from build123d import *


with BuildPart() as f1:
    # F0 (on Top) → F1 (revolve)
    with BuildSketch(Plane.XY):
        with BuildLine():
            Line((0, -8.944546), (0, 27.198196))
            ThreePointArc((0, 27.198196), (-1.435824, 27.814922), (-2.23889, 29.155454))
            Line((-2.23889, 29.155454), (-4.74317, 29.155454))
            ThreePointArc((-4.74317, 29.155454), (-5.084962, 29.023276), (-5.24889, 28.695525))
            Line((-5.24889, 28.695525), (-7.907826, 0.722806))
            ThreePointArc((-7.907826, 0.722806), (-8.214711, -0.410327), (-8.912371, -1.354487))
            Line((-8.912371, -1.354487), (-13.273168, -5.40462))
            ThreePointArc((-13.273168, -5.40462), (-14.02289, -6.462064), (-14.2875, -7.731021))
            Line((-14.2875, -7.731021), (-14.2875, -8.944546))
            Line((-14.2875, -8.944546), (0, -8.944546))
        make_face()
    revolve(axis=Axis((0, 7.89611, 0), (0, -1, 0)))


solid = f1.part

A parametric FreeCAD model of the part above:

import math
import FreeCAD as App
import Part
import Sketcher
from FreeCAD import Vector
Q = App.Units.Quantity

doc = App.newDocument("Part")
body = doc.addObject("PartDesign::Body", "Body")

sketch1 = body.newObject("Sketcher::SketchObject", "Sketch")
sketch1.AttachmentSupport = (doc.getObject("XY_Plane"), [""])
sketch1.MapMode = "FlatFace"
sketch1.addGeometry([
    Part.LineSegment(Vector(0, -8.9, 0), Vector(0, 27.2, 0)),
    Part.ArcOfCircle(Part.Circle(Vector(0.2, 29.7, 0), Vector(0, 0, 1), 2.5), math.radians(-167), math.radians(-95)),
    Part.LineSegment(Vector(-2.2, 29.2, 0), Vector(-4.7, 29.2, 0)),
    Part.ArcOfCircle(Part.Circle(Vector(-4.7, 28.6, 0), Vector(0, 0, 1), 0.5), math.radians(90), math.radians(175)),
    Part.LineSegment(Vector(-5.2, 28.7, 0), Vector(-7.9, 0.7, 0)),
    Part.ArcOfCircle(Part.Circle(Vector(-11.1, 1, 0), Vector(0, 0, 1), 3.2), math.radians(-47), math.radians(-4)),
    Part.LineSegment(Vector(-8.9, -1.4, 0), Vector(-13.3, -5.4, 0)),
    Part.ArcOfCircle(Part.Circle(Vector(-11.1, -7.7, 0), Vector(0, 0, 1), 3.2), math.radians(133), math.radians(180)),
    Part.LineSegment(Vector(-14.3, -7.7, 0), Vector(-14.3, -8.9, 0)),
    Part.LineSegment(Vector(-14.3, -8.9, 0), Vector(0, -8.9, 0)),
], False)
sketch1.addConstraint([
    Sketcher.Constraint("Coincident", 0, 2, 1, 2),
    Sketcher.Constraint("Coincident", 1, 1, 2, 1),
    Sketcher.Constraint("Tangent", 2, 2, 3, 1),
    Sketcher.Constraint("Tangent", 3, 2, 4, 1),
    Sketcher.Constraint("Coincident", 4, 2, 5, 2),
    Sketcher.Constraint("Tangent", 5, 1, 6, 1),
    Sketcher.Constraint("Tangent", 6, 2, 7, 1),
    Sketcher.Constraint("Tangent", 7, 2, 8, 1),
    Sketcher.Constraint("Coincident", 8, 2, 9, 1),
    Sketcher.Constraint("Coincident", 9, 2, 0, 1),
    Sketcher.Constraint("Vertical", 0),
    Sketcher.Constraint("Horizontal", 2),
    Sketcher.Constraint("Vertical", 8),
    Sketcher.Constraint("Horizontal", 9),
    Sketcher.Constraint("PointOnObject", 0, 2, -2),
    Sketcher.Constraint("Radius", 1, Q("0.1000001 in")),
    Sketcher.Constraint("Radius", 3, Q("0.02 in")),
    Sketcher.Constraint("Radius", 5, Q("0.1249999 in")),
    Sketcher.Constraint("DistanceX", 9, 1, 9, 2, Q("0.5625 in")),
    Sketcher.Constraint("Radius", 7, Q("3.175008 mm")),
    Sketcher.Constraint("DistanceX", 2, 2, 2, 1, Q("2.50428 mm")),
    Sketcher.Constraint("DistanceY", 0, 1, 0, 2, Q("36.142742 mm")),
    Sketcher.Constraint("DistanceX", 7, 3, 1, 1, Q("8.873602 mm")),
    Sketcher.Constraint("DistanceY", 5, 1, 5, 3, Q("2.3264 mm")),
    Sketcher.Constraint("Distance", 6, Q("5.951481 mm")),
    Sketcher.Constraint("DistanceY", 8, 2, 8, 1, Q("1.213525 mm")),
    Sketcher.Constraint("DistanceX", -1, 1, 1, 3, Q("0.235922 mm")),
    Sketcher.Constraint("DistanceY", 6, 2, -1, 1, Q("5.40462 mm")),
    Sketcher.Constraint("DistanceX", 5, 3, 4, 2, Q("3.165211 mm")),
])
revolution = body.newObject("PartDesign::Revolution", "Revolution")
revolution.Profile = sketch1
revolution.ReferenceAxis = (sketch1, ["V_Axis"])
revolution.Angle = 360

doc.recompute()
